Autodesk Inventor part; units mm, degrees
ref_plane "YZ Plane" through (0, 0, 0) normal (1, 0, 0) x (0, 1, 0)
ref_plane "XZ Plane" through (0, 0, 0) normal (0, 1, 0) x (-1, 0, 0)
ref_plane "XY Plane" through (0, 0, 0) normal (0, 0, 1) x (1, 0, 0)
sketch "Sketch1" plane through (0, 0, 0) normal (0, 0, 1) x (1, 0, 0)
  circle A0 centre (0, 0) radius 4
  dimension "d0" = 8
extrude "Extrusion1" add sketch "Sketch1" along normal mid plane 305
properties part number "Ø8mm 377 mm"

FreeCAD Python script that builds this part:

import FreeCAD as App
import Part
import Sketcher
from FreeCAD import Vector
Q = App.Units.Quantity

doc = App.newDocument("Part")
body = doc.addObject("PartDesign::Body", "Body")

sketch1 = body.newObject("Sketcher::SketchObject", "Sketch")
sketch1.AttachmentSupport = (doc.getObject("XY_Plane"), [""])
sketch1.MapMode = "FlatFace"
sketch1.addGeometry(Part.Circle(Vector(0, 0, 0), Vector(0, 0, 1), 4), False)
sketch1.addConstraint(Sketcher.Constraint("Coincident", 0, 3, -1, 1))
sketch1.addConstraint(Sketcher.Constraint("Diameter", 0, Q("8 mm")))
pad1 = body.newObject("PartDesign::Pad", "Pad")
pad1.Profile = sketch1
pad1.Length = 305
pad1.Midplane = True

doc.recompute()
